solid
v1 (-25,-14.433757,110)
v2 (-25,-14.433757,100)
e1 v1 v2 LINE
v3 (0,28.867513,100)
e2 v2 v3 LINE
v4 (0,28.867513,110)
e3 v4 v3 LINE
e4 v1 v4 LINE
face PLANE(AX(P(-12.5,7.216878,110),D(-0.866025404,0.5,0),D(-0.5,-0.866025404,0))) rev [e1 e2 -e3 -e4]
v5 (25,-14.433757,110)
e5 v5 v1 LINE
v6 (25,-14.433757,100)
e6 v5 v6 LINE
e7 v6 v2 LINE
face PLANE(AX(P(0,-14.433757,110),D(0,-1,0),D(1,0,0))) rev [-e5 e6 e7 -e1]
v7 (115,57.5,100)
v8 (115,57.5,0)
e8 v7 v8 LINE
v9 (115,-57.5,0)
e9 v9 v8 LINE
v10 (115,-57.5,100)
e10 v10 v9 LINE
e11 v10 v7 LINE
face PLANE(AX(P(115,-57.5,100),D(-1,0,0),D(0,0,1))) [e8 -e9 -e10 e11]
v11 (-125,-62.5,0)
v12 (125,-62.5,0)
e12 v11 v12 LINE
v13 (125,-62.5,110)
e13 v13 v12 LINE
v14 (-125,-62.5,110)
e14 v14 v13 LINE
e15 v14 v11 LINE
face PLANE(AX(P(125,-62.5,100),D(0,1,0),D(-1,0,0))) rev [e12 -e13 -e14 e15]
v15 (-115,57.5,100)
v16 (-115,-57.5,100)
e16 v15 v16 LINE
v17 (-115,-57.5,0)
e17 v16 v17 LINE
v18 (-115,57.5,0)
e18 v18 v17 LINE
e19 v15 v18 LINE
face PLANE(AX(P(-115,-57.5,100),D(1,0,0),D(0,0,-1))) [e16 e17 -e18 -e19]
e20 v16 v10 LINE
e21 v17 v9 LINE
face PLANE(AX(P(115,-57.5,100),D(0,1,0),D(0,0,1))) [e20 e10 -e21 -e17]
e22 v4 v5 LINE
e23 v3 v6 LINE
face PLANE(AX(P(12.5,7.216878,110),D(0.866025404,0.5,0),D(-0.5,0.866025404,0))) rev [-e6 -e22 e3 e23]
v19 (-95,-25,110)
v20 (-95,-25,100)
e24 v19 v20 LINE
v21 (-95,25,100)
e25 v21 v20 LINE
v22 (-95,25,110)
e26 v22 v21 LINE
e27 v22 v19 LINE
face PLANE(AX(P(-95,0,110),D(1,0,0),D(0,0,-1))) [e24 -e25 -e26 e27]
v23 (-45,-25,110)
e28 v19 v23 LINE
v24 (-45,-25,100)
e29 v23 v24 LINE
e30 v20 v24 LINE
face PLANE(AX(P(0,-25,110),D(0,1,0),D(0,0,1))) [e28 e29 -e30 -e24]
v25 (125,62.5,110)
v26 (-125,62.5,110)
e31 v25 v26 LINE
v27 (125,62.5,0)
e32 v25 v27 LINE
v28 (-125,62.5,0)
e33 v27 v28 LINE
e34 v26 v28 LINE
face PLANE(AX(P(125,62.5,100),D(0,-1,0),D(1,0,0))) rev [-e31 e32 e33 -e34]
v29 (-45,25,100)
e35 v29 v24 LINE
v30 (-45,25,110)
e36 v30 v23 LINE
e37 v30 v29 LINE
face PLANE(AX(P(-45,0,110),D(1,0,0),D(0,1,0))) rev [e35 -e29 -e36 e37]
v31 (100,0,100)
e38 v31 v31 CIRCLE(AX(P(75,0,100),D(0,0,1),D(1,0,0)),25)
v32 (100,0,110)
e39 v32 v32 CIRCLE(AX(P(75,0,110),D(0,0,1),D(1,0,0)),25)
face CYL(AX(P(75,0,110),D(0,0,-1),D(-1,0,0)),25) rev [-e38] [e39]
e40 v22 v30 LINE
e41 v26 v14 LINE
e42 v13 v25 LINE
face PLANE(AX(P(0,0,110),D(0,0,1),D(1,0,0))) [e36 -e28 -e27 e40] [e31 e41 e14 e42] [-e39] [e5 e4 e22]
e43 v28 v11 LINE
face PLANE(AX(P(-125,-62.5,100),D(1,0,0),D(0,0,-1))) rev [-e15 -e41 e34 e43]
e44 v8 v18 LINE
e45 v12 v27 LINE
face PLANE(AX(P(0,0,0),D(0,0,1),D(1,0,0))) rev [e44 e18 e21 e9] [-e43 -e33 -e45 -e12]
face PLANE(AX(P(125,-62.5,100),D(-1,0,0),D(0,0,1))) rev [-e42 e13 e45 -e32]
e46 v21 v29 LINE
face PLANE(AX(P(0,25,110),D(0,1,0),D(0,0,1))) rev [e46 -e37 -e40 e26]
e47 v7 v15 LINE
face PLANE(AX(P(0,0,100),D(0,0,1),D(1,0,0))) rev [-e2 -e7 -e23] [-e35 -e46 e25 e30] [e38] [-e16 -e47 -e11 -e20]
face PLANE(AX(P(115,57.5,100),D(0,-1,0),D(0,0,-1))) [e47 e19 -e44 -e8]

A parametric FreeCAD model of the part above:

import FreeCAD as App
import Part
import Sketcher

V = App.Vector
Q = App.Units.Quantity

doc = App.newDocument("Part")
body = doc.addObject("PartDesign::Body", "Body")

# Sketch on XY plane
sketch1 = body.newObject("Sketcher::SketchObject", "Sketch")
sketch1.AttachmentSupport = (doc.getObject("XY_Plane"), [""])
sketch1.MapMode = "FlatFace"
sketch1.addGeometry(Part.LineSegment(V(-125, 62, 0), V(-125, -62, 0)), False)
sketch1.addGeometry(Part.LineSegment(V(-125, -62, 0), V(125, -62, 0)), False)
sketch1.addGeometry(Part.LineSegment(V(125, -62, 0), V(125, 62, 0)), False)
sketch1.addGeometry(Part.LineSegment(V(125, 62, 0), V(-125, 62, 0)), False)
sketch1.addGeometry(Part.LineSegment(V(115, -58, 0), V(-115, -58, 0)), False)
sketch1.addGeometry(Part.LineSegment(V(-115, -58, 0), V(-115, 58, 0)), False)
sketch1.addGeometry(Part.LineSegment(V(-115, 58, 0), V(115, 58, 0)), False)
sketch1.addGeometry(Part.LineSegment(V(115, 58, 0), V(115, -58, 0)), False)
sketch1.addConstraint(Sketcher.Constraint("Coincident", 0, 2, 1, 1))
sketch1.addConstraint(Sketcher.Constraint("Coincident", 1, 2, 2, 1))
sketch1.addConstraint(Sketcher.Constraint("Coincident", 2, 2, 3, 1))
sketch1.addConstraint(Sketcher.Constraint("Coincident", 3, 2, 0, 1))
sketch1.addConstraint(Sketcher.Constraint("Coincident", 4, 2, 5, 1))
sketch1.addConstraint(Sketcher.Constraint("Coincident", 5, 2, 6, 1))
sketch1.addConstraint(Sketcher.Constraint("Coincident", 6, 2, 7, 1))
sketch1.addConstraint(Sketcher.Constraint("Coincident", 7, 2, 4, 1))
sketch1.addConstraint(Sketcher.Constraint("Vertical", 0))
sketch1.addConstraint(Sketcher.Constraint("Horizontal", 1))
sketch1.addConstraint(Sketcher.Constraint("Vertical", 2))
sketch1.addConstraint(Sketcher.Constraint("Horizontal", 3))
sketch1.addConstraint(Sketcher.Constraint("Horizontal", 4))
sketch1.addConstraint(Sketcher.Constraint("Vertical", 5))
sketch1.addConstraint(Sketcher.Constraint("Horizontal", 6))
sketch1.addConstraint(Sketcher.Constraint("Vertical", 7))
sketch1.addConstraint(Sketcher.Constraint("Symmetric", 0, 2, 2, 2, -1, 1))
sketch1.addConstraint(Sketcher.Constraint("Symmetric", 4, 2, 6, 2, -1, 1))
sketch1.addConstraint(Sketcher.Constraint("DistanceX", 1, 1, 1, 2, Q("250 mm")))
sketch1.addConstraint(Sketcher.Constraint("DistanceX", 4, 2, 4, 1, Q("230 mm")))
sketch1.addConstraint(Sketcher.Constraint("DistanceY", 0, 2, 0, 1, Q("125 mm")))
sketch1.addConstraint(Sketcher.Constraint("DistanceY", 5, 1, 5, 2, Q("115 mm")))
pad1 = body.newObject("PartDesign::Pad", "Pad")
pad1.Profile = sketch1
pad1.Length = 100

# Sketch on XY plane
sketch2 = body.newObject("Sketcher::SketchObject", "Sketch001")
sketch2.AttachmentSupport = (doc.getObject("XY_Plane"), [""])
sketch2.MapMode = "FlatFace"
sketch2.AttachmentOffset = App.Placement(V(0, 0, 100), App.Rotation())
sketch2.addGeometry(Part.LineSegment(V(-125, 62, 0), V(-125, -62, 0)), False)
sketch2.addGeometry(Part.LineSegment(V(-125, -62, 0), V(125, -62, 0)), False)
sketch2.addGeometry(Part.LineSegment(V(125, -62, 0), V(125, 62, 0)), False)
sketch2.addGeometry(Part.LineSegment(V(125, 62, 0), V(-125, 62, 0)), False)
sketch2.addGeometry(Part.Circle(V(75, 0, 0), V(0, 0, 1), 25), False)
sketch2.addGeometry(Part.LineSegment(V(0, 29, 0), V(25, -14, 0)), False)
sketch2.addGeometry(Part.LineSegment(V(25, -14, 0), V(-25, -14, 0)), False)
sketch2.addGeometry(Part.LineSegment(V(-25, -14, 0), V(0, 29, 0)), False)
sketch2.addGeometry(Part.LineSegment(V(-45, -25, 0), V(-95, -25, 0)), False)
sketch2.addGeometry(Part.LineSegment(V(-95, -25, 0), V(-95, 25, 0)), False)
sketch2.addGeometry(Part.LineSegment(V(-95, 25, 0), V(-45, 25, 0)), False)
sketch2.addGeometry(Part.LineSegment(V(-45, 25, 0), V(-45, -25, 0)), False)
sketch2.addConstraint(Sketcher.Constraint("Coincident", 0, 2, 1, 1))
sketch2.addConstraint(Sketcher.Constraint("Coincident", 1, 2, 2, 1))
sketch2.addConstraint(Sketcher.Constraint("Coincident", 2, 2, 3, 1))
sketch2.addConstraint(Sketcher.Constraint("Coincident", 3, 2, 0, 1))
sketch2.addConstraint(Sketcher.Constraint("Coincident", 5, 2, 6, 1))
sketch2.addConstraint(Sketcher.Constraint("Coincident", 6, 2, 7, 1))
sketch2.addConstraint(Sketcher.Constraint("Coincident", 7, 2, 5, 1))
sketch2.addConstraint(Sketcher.Constraint("Coincident", 8, 2, 9, 1))
sketch2.addConstraint(Sketcher.Constraint("Coincident", 9, 2, 10, 1))
sketch2.addConstraint(Sketcher.Constraint("Coincident", 10, 2, 11, 1))
sketch2.addConstraint(Sketcher.Constraint("Coincident", 11, 2, 8, 1))
sketch2.addConstraint(Sketcher.Constraint("Vertical", 0))
sketch2.addConstraint(Sketcher.Constraint("Horizontal", 1))
sketch2.addConstraint(Sketcher.Constraint("Vertical", 2))
sketch2.addConstraint(Sketcher.Constraint("Horizontal", 3))
sketch2.addConstraint(Sketcher.Constraint("Horizontal", 6))
sketch2.addConstraint(Sketcher.Constraint("Horizontal", 8))
sketch2.addConstraint(Sketcher.Constraint("Vertical", 9))
sketch2.addConstraint(Sketcher.Constraint("Horizontal", 10))
sketch2.addConstraint(Sketcher.Constraint("Vertical", 11))
sketch2.addConstraint(Sketcher.Constraint("Symmetric", 0, 2, 2, 2, -1, 1))
sketch2.addConstraint(Sketcher.Constraint("PointOnObject", 4, 3, -1))
sketch2.addConstraint(Sketcher.Constraint("PointOnObject", 7, 2, -2))
sketch2.addConstraint(Sketcher.Constraint("Equal", 6, 8))
sketch2.addConstraint(Sketcher.Constraint("Equal", 10, 9))
sketch2.addConstraint(Sketcher.Constraint("Equal", 5, 7))
sketch2.addConstraint(Sketcher.Constraint("Diameter", 4, Q("50 mm")))
sketch2.addConstraint(Sketcher.Constraint("DistanceX", 1, 1, 1, 2, Q("250 mm")))
sketch2.addConstraint(Sketcher.Constraint("DistanceX", 6, 2, 6, 1, Q("50 mm")))
sketch2.addConstraint(Sketcher.Constraint("DistanceY", 0, 2, 0, 1, Q("125 mm")))
sketch2.addConstraint(Sketcher.Constraint("Angle", 5, Q("-60 deg")))
sketch2.addConstraint(Sketcher.Constraint("DistanceX", -1, 1, 4, 3, Q("75 mm")))
sketch2.addConstraint(Sketcher.Constraint("DistanceX", 8, 2, -1, 1, Q("95 mm")))
sketch2.addConstraint(Sketcher.Constraint("DistanceY", 8, 2, -1, 1, Q("25 mm")))
sketch2.addConstraint(Sketcher.Constraint("DistanceY", 5, 2, -1, 1, Q("14.433757 mm")))
pad2 = body.newObject("PartDesign::Pad", "Pad001")
pad2.Profile = sketch2
pad2.Length = 10

doc.recompute()
